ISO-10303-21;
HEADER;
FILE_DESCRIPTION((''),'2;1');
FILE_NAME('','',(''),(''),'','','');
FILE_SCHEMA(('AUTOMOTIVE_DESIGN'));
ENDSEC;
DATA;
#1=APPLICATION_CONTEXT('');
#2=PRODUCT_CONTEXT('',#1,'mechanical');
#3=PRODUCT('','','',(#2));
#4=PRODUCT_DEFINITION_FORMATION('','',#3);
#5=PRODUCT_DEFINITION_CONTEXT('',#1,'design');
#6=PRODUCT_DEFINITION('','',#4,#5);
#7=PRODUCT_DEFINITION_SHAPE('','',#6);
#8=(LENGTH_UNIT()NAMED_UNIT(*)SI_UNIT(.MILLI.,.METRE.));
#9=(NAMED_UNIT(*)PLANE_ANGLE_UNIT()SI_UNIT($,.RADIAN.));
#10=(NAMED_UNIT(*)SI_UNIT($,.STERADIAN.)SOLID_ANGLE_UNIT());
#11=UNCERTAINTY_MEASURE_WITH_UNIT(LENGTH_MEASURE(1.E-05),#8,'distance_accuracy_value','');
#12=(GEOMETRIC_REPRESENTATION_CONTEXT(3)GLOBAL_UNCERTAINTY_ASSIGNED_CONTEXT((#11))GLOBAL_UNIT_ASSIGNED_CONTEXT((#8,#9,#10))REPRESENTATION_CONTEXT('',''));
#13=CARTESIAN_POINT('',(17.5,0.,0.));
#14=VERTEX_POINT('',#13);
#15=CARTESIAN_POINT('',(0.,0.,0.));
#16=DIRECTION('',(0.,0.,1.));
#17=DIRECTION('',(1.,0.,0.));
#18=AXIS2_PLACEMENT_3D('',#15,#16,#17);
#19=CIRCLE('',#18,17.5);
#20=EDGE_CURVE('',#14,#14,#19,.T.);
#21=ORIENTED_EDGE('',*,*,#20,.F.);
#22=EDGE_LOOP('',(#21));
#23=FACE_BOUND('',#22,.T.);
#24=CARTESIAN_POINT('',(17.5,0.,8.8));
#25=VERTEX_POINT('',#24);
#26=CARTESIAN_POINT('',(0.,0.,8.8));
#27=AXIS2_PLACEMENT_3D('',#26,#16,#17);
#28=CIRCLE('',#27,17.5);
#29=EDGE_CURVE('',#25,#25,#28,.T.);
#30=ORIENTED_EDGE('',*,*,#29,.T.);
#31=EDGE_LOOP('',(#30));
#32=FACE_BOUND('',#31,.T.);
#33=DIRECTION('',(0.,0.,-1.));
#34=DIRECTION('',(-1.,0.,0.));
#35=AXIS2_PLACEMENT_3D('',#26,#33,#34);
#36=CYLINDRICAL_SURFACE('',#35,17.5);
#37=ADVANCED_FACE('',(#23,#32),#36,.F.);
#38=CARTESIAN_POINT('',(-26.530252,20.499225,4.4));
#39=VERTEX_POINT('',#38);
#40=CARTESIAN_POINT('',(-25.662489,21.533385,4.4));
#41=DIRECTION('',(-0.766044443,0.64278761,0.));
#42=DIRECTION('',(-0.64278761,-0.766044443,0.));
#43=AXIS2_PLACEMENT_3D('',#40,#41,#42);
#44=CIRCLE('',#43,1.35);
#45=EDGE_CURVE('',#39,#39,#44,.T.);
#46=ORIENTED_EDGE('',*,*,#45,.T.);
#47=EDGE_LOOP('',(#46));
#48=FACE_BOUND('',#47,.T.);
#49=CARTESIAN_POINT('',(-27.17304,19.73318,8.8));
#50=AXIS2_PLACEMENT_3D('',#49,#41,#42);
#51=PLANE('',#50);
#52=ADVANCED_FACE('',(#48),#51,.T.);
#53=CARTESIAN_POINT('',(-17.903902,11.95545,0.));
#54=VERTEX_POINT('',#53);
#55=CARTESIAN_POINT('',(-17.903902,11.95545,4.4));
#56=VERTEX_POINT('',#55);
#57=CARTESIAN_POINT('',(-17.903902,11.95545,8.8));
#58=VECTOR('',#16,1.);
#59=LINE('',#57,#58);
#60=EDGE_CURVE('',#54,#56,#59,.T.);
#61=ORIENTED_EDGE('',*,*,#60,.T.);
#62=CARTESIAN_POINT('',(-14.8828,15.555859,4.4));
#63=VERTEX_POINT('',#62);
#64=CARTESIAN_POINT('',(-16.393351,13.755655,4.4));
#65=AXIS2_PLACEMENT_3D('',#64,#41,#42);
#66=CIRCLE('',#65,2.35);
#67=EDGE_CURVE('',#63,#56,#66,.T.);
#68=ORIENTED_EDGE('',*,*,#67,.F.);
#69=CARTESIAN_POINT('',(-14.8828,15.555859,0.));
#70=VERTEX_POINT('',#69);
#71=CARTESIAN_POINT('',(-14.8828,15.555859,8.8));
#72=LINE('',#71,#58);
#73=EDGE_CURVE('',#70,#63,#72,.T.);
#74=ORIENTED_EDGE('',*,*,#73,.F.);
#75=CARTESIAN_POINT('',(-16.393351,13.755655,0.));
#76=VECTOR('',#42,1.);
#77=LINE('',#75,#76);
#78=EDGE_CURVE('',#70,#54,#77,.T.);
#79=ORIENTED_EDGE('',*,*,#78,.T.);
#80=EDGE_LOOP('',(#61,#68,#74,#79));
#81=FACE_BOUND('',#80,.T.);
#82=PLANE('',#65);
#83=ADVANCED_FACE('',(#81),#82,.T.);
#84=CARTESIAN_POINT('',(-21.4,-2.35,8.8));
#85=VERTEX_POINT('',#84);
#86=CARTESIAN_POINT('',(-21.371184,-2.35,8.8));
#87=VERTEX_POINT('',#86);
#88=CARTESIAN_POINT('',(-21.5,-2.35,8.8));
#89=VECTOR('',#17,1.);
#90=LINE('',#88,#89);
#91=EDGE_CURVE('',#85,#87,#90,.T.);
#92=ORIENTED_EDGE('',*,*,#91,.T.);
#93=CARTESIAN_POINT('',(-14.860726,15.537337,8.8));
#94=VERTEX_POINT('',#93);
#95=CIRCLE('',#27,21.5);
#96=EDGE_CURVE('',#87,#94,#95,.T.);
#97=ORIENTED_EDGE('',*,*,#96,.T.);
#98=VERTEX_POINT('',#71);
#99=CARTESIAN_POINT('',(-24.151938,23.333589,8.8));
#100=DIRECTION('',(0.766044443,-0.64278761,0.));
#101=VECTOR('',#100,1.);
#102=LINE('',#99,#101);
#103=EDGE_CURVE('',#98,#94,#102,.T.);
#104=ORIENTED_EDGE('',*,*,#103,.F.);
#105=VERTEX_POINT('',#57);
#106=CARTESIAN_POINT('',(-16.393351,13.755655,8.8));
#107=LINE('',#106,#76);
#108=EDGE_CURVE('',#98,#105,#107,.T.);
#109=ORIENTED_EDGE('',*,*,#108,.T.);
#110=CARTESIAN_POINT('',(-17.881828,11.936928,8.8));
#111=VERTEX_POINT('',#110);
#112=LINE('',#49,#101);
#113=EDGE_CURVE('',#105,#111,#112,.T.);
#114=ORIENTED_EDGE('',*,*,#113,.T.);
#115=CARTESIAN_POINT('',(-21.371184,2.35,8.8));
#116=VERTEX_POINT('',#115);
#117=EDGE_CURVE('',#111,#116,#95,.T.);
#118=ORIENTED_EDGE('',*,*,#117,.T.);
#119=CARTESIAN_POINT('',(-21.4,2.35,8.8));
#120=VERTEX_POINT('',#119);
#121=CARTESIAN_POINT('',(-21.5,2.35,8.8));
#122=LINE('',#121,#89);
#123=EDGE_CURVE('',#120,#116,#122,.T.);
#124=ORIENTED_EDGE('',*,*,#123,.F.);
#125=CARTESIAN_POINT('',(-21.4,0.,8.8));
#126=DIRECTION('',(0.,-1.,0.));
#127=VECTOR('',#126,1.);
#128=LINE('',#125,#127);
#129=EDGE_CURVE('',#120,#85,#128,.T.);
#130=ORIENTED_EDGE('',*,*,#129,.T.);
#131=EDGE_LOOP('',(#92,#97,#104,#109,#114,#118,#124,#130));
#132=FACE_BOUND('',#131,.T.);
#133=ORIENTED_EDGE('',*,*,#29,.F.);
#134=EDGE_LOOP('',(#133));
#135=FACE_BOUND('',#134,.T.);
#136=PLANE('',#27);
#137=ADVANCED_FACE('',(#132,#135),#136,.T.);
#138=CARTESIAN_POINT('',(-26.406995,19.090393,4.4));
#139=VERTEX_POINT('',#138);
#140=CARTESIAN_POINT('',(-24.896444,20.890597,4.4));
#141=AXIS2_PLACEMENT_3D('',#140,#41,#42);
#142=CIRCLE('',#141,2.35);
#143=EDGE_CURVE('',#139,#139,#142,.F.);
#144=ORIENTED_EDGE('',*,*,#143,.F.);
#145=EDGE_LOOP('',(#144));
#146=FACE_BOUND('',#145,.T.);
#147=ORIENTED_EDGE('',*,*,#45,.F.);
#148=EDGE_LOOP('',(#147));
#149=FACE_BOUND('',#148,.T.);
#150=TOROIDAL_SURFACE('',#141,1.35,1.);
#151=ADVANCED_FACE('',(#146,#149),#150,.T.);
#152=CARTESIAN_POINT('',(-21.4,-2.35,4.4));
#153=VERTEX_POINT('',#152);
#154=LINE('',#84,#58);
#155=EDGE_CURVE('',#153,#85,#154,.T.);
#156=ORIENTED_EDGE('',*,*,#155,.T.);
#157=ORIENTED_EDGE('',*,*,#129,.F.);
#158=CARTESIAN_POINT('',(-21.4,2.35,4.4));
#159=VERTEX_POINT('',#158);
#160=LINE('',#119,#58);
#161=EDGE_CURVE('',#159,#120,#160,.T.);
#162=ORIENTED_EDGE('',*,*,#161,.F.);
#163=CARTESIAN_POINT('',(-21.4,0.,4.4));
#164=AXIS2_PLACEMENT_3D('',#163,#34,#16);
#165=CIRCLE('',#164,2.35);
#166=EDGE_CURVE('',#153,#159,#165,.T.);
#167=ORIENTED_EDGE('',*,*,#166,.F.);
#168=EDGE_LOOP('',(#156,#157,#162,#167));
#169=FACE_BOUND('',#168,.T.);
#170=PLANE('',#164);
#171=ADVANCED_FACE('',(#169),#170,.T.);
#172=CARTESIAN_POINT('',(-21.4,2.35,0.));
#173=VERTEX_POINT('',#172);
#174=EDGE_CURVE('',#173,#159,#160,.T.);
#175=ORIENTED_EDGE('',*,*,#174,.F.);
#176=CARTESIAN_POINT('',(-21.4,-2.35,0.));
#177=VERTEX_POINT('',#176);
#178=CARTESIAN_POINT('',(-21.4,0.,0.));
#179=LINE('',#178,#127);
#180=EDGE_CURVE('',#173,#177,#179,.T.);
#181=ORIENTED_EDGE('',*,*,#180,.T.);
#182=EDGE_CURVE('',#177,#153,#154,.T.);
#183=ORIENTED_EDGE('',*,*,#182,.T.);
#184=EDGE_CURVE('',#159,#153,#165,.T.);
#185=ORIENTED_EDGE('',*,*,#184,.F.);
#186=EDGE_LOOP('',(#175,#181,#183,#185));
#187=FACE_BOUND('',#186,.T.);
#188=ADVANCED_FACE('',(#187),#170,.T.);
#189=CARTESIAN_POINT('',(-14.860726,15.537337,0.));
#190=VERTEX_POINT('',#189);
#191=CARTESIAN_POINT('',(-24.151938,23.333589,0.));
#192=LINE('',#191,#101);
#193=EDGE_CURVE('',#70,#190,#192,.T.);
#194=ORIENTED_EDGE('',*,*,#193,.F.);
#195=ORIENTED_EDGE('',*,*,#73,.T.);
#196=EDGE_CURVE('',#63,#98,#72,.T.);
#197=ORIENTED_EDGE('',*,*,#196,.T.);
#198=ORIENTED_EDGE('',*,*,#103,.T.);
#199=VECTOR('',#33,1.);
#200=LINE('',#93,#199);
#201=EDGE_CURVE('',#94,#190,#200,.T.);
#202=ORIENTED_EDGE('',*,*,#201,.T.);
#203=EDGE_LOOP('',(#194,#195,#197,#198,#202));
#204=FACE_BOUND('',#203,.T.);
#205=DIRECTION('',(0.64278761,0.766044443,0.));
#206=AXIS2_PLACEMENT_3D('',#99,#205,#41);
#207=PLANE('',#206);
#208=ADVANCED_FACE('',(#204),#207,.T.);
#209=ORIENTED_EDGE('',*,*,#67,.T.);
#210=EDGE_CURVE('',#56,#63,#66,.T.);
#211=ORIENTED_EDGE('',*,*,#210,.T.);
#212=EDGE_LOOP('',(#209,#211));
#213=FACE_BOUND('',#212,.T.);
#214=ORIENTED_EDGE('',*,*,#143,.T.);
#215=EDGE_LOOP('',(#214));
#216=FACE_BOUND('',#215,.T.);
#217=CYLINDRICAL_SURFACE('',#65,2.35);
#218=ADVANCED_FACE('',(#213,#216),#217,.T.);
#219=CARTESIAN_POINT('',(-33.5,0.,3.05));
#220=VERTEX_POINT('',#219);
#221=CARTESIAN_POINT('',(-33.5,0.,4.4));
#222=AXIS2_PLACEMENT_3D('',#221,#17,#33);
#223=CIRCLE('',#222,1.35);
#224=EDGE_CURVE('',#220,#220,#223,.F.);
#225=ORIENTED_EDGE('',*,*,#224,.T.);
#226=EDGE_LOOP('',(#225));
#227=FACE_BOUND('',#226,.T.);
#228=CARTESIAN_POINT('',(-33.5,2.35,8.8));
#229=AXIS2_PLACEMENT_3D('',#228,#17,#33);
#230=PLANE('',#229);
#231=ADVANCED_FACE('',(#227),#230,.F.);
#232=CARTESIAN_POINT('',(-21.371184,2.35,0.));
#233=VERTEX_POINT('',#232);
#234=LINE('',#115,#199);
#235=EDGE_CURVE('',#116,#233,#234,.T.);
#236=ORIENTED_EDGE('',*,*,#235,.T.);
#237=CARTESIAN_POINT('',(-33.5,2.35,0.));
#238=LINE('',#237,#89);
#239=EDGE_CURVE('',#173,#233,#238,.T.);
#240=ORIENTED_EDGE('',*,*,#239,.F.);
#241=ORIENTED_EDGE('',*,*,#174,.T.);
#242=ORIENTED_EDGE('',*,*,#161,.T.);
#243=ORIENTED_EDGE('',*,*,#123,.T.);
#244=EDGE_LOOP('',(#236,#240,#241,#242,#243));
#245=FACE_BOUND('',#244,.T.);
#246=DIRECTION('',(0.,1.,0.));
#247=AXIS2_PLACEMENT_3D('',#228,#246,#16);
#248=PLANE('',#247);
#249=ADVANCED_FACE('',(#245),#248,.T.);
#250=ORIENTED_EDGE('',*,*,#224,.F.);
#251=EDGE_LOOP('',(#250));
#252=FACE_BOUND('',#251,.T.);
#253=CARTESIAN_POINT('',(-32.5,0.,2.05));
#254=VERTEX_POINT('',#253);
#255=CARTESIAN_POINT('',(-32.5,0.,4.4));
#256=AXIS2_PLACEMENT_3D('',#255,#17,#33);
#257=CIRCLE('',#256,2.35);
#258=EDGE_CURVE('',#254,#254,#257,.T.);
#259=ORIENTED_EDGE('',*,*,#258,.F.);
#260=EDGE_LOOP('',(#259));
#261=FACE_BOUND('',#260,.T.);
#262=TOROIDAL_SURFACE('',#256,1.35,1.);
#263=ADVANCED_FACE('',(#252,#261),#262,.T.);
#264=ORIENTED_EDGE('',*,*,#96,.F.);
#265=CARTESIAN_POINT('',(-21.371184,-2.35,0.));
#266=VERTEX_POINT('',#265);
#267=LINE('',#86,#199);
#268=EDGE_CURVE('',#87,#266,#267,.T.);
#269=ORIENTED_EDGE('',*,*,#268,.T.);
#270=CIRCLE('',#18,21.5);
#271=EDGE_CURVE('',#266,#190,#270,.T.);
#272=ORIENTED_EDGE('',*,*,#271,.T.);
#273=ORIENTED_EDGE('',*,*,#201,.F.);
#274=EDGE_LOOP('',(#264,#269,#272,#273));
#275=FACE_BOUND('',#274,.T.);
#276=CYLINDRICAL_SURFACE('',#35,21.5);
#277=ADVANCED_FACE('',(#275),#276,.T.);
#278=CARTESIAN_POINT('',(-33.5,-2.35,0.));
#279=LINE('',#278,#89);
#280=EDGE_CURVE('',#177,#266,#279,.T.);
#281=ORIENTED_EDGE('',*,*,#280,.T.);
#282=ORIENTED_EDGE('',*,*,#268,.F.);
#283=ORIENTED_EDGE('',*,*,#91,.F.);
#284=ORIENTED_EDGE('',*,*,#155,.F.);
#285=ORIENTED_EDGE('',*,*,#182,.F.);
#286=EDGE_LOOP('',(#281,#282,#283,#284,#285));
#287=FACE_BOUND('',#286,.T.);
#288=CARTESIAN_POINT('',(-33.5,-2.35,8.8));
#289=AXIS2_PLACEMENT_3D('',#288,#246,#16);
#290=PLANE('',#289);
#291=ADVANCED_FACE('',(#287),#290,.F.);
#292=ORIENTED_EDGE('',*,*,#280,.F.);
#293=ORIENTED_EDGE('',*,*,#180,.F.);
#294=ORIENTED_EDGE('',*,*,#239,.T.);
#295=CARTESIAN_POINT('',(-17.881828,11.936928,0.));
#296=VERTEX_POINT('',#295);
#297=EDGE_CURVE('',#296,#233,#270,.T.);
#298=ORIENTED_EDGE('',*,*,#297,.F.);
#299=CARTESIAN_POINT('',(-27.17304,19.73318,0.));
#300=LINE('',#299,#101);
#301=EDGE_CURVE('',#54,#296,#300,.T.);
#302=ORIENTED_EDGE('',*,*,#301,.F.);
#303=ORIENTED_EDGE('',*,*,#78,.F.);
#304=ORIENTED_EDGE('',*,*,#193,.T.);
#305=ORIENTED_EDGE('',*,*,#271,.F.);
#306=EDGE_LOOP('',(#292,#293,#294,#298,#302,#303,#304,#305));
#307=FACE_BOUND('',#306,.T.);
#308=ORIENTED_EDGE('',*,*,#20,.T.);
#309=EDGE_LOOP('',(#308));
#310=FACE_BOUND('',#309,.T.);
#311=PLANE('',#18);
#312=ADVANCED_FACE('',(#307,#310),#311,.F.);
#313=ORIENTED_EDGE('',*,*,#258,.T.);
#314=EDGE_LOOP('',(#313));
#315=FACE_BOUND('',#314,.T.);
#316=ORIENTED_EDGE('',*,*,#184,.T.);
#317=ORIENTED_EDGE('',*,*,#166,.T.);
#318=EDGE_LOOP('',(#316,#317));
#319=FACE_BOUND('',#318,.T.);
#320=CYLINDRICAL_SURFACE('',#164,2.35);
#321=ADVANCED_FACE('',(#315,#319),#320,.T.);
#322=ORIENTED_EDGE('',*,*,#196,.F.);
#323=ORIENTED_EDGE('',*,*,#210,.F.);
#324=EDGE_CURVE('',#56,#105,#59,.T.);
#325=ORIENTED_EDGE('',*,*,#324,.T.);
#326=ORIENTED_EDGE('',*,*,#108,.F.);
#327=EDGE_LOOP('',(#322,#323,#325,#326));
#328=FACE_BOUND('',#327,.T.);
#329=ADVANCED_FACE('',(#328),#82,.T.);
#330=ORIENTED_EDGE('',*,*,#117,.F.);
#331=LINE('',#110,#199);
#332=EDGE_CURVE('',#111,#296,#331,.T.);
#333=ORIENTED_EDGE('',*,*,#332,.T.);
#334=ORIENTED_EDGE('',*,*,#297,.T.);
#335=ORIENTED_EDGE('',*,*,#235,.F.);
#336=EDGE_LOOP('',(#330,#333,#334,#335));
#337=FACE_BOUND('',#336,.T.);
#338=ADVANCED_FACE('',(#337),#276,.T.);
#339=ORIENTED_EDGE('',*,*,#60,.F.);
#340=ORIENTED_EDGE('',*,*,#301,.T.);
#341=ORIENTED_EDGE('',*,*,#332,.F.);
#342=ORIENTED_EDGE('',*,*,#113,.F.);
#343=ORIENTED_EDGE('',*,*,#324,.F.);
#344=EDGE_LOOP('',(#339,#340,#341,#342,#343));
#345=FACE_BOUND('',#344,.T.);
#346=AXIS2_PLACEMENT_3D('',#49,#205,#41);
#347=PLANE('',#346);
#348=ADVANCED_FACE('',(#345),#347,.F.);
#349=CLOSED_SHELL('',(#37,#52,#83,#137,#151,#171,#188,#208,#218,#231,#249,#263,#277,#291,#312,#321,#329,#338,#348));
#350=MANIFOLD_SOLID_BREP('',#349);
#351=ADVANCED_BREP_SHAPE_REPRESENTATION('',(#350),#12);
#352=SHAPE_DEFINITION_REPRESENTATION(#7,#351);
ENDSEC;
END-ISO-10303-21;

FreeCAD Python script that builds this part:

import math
import FreeCAD as App
import Part
import Sketcher
Q = App.Units.Quantity


def edges_at(feature, points):
    """Names of the edges that pass closest to the given points."""
    edges = feature.Shape.Edges
    near = lambda p: min(range(len(edges)), key=lambda i: edges[i].distToShape(Part.Vertex(*p))[0])
    return sorted({f"Edge{near(p) + 1}" for p in points})

doc = App.newDocument("Part")
body = doc.addObject("PartDesign::Body", "Body")

# Sketch on XY plane
sketch1 = body.newObject("Sketcher::SketchObject", "Sketch")
sketch1.AttachmentSupport = (doc.getObject("XY_Plane"), [""])
sketch1.MapMode = "FlatFace"
sketch1.addGeometry(Part.LineSegment(App.Vector(-21.4, 2.4, 0), App.Vector(-33.5, 2.4, 0)), False)
sketch1.addGeometry(Part.LineSegment(App.Vector(-33.5, 2.4, 0), App.Vector(-33.5, -2.4, 0)), False)
sketch1.addGeometry(Part.LineSegment(App.Vector(-33.5, -2.4, 0), App.Vector(-21.4, -2.4, 0)), False)
sketch1.addGeometry(Part.ArcOfCircle(Part.Circle(App.Vector(0, 0, 0), App.Vector(0, 0, 1), 21.5), math.radians(-174), math.radians(134)), False)
sketch1.addGeometry(Part.LineSegment(App.Vector(-14.9, 15.5, 0), App.Vector(-24.2, 23.3, 0)), False)
sketch1.addGeometry(Part.LineSegment(App.Vector(-24.2, 23.3, 0), App.Vector(-27.2, 19.7, 0)), False)
sketch1.addGeometry(Part.LineSegment(App.Vector(-27.2, 19.7, 0), App.Vector(-17.9, 11.9, 0)), False)
sketch1.addGeometry(Part.ArcOfCircle(Part.Circle(App.Vector(0, 0, 0), App.Vector(0, 0, 1), 21.5), math.radians(146), math.radians(174)), False)
sketch1.addGeometry(Part.Circle(App.Vector(0, 0, 0), App.Vector(0, 0, 1), 17.5), False)
sketch1.addConstraint(Sketcher.Constraint("Coincident", 0, 2, 1, 1))
sketch1.addConstraint(Sketcher.Constraint("Coincident", 1, 2, 2, 1))
sketch1.addConstraint(Sketcher.Constraint("Coincident", 2, 2, 3, 1))
sketch1.addConstraint(Sketcher.Constraint("Coincident", 3, 2, 4, 1))
sketch1.addConstraint(Sketcher.Constraint("Coincident", 4, 2, 5, 1))
sketch1.addConstraint(Sketcher.Constraint("Coincident", 5, 2, 6, 1))
sketch1.addConstraint(Sketcher.Constraint("Coincident", 6, 2, 7, 1))
sketch1.addConstraint(Sketcher.Constraint("Coincident", 7, 2, 0, 1))
sketch1.addConstraint(Sketcher.Constraint("Horizontal", 0))
sketch1.addConstraint(Sketcher.Constraint("Vertical", 1))
sketch1.addConstraint(Sketcher.Constraint("Horizontal", 2))
sketch1.addConstraint(Sketcher.Constraint("Coincident", 3, 3, -1, 1))
sketch1.addConstraint(Sketcher.Constraint("Coincident", 7, 3, -1, 1))
sketch1.addConstraint(Sketcher.Constraint("Coincident", 8, 3, -1, 1))
sketch1.addConstraint(Sketcher.Constraint("Equal", 3, 7))
sketch1.addConstraint(Sketcher.Constraint("Perpendicular", 4, 5))
sketch1.addConstraint(Sketcher.Constraint("Perpendicular", 5, 6))
sketch1.addConstraint(Sketcher.Constraint("Vertical", 2, 2, 7, 2))
sketch1.addConstraint(Sketcher.Constraint("Equal", 4, 6))
sketch1.addConstraint(Sketcher.Constraint("Diameter", 8, Q("35 mm")))
sketch1.addConstraint(Sketcher.Constraint("Radius", 3, Q("21.5 mm")))
sketch1.addConstraint(Sketcher.Constraint("Angle", 4, Q("140 deg")))
sketch1.addConstraint(Sketcher.Constraint("DistanceY", 1, 2, 1, 1, Q("4.7 mm")))
sketch1.addConstraint(Sketcher.Constraint("Distance", 5, Q("4.7 mm")))
sketch1.addConstraint(Sketcher.Constraint("DistanceX", 0, 2, -1, 1, Q("33.5 mm")))
sketch1.addConstraint(Sketcher.Constraint("DistanceY", -1, 1, 4, 2, Q("23.333589 mm")))
pad1 = body.newObject("PartDesign::Pad", "Pad")
pad1.Profile = sketch1
pad1.Length = 8.8

# Sketch on an angled plane
sketch2 = body.newObject("Sketcher::SketchObject", "Sketch001")
sketch2.Placement = App.Placement(App.Vector(-25.662489, 21.533385, 0), App.Rotation(App.Vector(0, 0, 1), App.Vector(0.64278761, 0.766044443, 0), App.Vector(-0.766044443, 0.64278761, 0), "ZXY"))
sketch2.addGeometry(Part.Circle(App.Vector(4.4, 0, 0), App.Vector(0, 0, 1), 6.4), False)
sketch2.addGeometry(Part.Circle(App.Vector(4.4, 0, 0), App.Vector(0, 0, 1), 2.4), False)
sketch2.addConstraint(Sketcher.Constraint("Coincident", 1, 3, 0, 3))
sketch2.addConstraint(Sketcher.Constraint("PointOnObject", 0, 3, -1))
sketch2.addConstraint(Sketcher.Constraint("Diameter", 1, Q("4.7 mm")))
sketch2.addConstraint(Sketcher.Constraint("DistanceX", -1, 1, 0, 3, Q("4.4 mm")))
sketch2.addConstraint(Sketcher.Constraint("Diameter", 0, Q("12.746366 mm")))
pocket1 = body.newObject("PartDesign::Pocket", "Pocket")
pocket1.Profile = sketch2
pocket1.Length = 12.1

# Sketch on YZ plane
sketch3 = body.newObject("Sketcher::SketchObject", "Sketch002")
sketch3.AttachmentSupport = (doc.getObject("YZ_Plane"), [""])
sketch3.MapMode = "FlatFace"
sketch3.AttachmentOffset = App.Placement(App.Vector(0, 0, -33.5), App.Rotation())
sketch3.addGeometry(Part.Circle(App.Vector(0, 4.4, 0), App.Vector(0, 0, 1), 10.7), False)
sketch3.addGeometry(Part.Circle(App.Vector(0, 4.4, 0), App.Vector(0, 0, 1), 2.4), False)
sketch3.addConstraint(Sketcher.Constraint("Coincident", 1, 3, 0, 3))
sketch3.addConstraint(Sketcher.Constraint("PointOnObject", 0, 3, -2))
sketch3.addConstraint(Sketcher.Constraint("Diameter", 1, Q("4.7 mm")))
sketch3.addConstraint(Sketcher.Constraint("DistanceY", -1, 1, 0, 3, Q("4.4 mm")))
sketch3.addConstraint(Sketcher.Constraint("Diameter", 0, Q("21.378816 mm")))
pocket2 = body.newObject("PartDesign::Pocket", "Pocket001")
pocket2.Profile = sketch3
pocket2.Length = 12.1
pocket2.Reversed = True
doc.recompute()

fillet = body.newObject("PartDesign::Fillet", "Fillet")
fillet.Base = (pocket2, edges_at(pocket2, [(-25.662, 21.533, 2.05), (-33.5, 0, 2.05)]))
fillet.Radius = 1

doc.recompute()
